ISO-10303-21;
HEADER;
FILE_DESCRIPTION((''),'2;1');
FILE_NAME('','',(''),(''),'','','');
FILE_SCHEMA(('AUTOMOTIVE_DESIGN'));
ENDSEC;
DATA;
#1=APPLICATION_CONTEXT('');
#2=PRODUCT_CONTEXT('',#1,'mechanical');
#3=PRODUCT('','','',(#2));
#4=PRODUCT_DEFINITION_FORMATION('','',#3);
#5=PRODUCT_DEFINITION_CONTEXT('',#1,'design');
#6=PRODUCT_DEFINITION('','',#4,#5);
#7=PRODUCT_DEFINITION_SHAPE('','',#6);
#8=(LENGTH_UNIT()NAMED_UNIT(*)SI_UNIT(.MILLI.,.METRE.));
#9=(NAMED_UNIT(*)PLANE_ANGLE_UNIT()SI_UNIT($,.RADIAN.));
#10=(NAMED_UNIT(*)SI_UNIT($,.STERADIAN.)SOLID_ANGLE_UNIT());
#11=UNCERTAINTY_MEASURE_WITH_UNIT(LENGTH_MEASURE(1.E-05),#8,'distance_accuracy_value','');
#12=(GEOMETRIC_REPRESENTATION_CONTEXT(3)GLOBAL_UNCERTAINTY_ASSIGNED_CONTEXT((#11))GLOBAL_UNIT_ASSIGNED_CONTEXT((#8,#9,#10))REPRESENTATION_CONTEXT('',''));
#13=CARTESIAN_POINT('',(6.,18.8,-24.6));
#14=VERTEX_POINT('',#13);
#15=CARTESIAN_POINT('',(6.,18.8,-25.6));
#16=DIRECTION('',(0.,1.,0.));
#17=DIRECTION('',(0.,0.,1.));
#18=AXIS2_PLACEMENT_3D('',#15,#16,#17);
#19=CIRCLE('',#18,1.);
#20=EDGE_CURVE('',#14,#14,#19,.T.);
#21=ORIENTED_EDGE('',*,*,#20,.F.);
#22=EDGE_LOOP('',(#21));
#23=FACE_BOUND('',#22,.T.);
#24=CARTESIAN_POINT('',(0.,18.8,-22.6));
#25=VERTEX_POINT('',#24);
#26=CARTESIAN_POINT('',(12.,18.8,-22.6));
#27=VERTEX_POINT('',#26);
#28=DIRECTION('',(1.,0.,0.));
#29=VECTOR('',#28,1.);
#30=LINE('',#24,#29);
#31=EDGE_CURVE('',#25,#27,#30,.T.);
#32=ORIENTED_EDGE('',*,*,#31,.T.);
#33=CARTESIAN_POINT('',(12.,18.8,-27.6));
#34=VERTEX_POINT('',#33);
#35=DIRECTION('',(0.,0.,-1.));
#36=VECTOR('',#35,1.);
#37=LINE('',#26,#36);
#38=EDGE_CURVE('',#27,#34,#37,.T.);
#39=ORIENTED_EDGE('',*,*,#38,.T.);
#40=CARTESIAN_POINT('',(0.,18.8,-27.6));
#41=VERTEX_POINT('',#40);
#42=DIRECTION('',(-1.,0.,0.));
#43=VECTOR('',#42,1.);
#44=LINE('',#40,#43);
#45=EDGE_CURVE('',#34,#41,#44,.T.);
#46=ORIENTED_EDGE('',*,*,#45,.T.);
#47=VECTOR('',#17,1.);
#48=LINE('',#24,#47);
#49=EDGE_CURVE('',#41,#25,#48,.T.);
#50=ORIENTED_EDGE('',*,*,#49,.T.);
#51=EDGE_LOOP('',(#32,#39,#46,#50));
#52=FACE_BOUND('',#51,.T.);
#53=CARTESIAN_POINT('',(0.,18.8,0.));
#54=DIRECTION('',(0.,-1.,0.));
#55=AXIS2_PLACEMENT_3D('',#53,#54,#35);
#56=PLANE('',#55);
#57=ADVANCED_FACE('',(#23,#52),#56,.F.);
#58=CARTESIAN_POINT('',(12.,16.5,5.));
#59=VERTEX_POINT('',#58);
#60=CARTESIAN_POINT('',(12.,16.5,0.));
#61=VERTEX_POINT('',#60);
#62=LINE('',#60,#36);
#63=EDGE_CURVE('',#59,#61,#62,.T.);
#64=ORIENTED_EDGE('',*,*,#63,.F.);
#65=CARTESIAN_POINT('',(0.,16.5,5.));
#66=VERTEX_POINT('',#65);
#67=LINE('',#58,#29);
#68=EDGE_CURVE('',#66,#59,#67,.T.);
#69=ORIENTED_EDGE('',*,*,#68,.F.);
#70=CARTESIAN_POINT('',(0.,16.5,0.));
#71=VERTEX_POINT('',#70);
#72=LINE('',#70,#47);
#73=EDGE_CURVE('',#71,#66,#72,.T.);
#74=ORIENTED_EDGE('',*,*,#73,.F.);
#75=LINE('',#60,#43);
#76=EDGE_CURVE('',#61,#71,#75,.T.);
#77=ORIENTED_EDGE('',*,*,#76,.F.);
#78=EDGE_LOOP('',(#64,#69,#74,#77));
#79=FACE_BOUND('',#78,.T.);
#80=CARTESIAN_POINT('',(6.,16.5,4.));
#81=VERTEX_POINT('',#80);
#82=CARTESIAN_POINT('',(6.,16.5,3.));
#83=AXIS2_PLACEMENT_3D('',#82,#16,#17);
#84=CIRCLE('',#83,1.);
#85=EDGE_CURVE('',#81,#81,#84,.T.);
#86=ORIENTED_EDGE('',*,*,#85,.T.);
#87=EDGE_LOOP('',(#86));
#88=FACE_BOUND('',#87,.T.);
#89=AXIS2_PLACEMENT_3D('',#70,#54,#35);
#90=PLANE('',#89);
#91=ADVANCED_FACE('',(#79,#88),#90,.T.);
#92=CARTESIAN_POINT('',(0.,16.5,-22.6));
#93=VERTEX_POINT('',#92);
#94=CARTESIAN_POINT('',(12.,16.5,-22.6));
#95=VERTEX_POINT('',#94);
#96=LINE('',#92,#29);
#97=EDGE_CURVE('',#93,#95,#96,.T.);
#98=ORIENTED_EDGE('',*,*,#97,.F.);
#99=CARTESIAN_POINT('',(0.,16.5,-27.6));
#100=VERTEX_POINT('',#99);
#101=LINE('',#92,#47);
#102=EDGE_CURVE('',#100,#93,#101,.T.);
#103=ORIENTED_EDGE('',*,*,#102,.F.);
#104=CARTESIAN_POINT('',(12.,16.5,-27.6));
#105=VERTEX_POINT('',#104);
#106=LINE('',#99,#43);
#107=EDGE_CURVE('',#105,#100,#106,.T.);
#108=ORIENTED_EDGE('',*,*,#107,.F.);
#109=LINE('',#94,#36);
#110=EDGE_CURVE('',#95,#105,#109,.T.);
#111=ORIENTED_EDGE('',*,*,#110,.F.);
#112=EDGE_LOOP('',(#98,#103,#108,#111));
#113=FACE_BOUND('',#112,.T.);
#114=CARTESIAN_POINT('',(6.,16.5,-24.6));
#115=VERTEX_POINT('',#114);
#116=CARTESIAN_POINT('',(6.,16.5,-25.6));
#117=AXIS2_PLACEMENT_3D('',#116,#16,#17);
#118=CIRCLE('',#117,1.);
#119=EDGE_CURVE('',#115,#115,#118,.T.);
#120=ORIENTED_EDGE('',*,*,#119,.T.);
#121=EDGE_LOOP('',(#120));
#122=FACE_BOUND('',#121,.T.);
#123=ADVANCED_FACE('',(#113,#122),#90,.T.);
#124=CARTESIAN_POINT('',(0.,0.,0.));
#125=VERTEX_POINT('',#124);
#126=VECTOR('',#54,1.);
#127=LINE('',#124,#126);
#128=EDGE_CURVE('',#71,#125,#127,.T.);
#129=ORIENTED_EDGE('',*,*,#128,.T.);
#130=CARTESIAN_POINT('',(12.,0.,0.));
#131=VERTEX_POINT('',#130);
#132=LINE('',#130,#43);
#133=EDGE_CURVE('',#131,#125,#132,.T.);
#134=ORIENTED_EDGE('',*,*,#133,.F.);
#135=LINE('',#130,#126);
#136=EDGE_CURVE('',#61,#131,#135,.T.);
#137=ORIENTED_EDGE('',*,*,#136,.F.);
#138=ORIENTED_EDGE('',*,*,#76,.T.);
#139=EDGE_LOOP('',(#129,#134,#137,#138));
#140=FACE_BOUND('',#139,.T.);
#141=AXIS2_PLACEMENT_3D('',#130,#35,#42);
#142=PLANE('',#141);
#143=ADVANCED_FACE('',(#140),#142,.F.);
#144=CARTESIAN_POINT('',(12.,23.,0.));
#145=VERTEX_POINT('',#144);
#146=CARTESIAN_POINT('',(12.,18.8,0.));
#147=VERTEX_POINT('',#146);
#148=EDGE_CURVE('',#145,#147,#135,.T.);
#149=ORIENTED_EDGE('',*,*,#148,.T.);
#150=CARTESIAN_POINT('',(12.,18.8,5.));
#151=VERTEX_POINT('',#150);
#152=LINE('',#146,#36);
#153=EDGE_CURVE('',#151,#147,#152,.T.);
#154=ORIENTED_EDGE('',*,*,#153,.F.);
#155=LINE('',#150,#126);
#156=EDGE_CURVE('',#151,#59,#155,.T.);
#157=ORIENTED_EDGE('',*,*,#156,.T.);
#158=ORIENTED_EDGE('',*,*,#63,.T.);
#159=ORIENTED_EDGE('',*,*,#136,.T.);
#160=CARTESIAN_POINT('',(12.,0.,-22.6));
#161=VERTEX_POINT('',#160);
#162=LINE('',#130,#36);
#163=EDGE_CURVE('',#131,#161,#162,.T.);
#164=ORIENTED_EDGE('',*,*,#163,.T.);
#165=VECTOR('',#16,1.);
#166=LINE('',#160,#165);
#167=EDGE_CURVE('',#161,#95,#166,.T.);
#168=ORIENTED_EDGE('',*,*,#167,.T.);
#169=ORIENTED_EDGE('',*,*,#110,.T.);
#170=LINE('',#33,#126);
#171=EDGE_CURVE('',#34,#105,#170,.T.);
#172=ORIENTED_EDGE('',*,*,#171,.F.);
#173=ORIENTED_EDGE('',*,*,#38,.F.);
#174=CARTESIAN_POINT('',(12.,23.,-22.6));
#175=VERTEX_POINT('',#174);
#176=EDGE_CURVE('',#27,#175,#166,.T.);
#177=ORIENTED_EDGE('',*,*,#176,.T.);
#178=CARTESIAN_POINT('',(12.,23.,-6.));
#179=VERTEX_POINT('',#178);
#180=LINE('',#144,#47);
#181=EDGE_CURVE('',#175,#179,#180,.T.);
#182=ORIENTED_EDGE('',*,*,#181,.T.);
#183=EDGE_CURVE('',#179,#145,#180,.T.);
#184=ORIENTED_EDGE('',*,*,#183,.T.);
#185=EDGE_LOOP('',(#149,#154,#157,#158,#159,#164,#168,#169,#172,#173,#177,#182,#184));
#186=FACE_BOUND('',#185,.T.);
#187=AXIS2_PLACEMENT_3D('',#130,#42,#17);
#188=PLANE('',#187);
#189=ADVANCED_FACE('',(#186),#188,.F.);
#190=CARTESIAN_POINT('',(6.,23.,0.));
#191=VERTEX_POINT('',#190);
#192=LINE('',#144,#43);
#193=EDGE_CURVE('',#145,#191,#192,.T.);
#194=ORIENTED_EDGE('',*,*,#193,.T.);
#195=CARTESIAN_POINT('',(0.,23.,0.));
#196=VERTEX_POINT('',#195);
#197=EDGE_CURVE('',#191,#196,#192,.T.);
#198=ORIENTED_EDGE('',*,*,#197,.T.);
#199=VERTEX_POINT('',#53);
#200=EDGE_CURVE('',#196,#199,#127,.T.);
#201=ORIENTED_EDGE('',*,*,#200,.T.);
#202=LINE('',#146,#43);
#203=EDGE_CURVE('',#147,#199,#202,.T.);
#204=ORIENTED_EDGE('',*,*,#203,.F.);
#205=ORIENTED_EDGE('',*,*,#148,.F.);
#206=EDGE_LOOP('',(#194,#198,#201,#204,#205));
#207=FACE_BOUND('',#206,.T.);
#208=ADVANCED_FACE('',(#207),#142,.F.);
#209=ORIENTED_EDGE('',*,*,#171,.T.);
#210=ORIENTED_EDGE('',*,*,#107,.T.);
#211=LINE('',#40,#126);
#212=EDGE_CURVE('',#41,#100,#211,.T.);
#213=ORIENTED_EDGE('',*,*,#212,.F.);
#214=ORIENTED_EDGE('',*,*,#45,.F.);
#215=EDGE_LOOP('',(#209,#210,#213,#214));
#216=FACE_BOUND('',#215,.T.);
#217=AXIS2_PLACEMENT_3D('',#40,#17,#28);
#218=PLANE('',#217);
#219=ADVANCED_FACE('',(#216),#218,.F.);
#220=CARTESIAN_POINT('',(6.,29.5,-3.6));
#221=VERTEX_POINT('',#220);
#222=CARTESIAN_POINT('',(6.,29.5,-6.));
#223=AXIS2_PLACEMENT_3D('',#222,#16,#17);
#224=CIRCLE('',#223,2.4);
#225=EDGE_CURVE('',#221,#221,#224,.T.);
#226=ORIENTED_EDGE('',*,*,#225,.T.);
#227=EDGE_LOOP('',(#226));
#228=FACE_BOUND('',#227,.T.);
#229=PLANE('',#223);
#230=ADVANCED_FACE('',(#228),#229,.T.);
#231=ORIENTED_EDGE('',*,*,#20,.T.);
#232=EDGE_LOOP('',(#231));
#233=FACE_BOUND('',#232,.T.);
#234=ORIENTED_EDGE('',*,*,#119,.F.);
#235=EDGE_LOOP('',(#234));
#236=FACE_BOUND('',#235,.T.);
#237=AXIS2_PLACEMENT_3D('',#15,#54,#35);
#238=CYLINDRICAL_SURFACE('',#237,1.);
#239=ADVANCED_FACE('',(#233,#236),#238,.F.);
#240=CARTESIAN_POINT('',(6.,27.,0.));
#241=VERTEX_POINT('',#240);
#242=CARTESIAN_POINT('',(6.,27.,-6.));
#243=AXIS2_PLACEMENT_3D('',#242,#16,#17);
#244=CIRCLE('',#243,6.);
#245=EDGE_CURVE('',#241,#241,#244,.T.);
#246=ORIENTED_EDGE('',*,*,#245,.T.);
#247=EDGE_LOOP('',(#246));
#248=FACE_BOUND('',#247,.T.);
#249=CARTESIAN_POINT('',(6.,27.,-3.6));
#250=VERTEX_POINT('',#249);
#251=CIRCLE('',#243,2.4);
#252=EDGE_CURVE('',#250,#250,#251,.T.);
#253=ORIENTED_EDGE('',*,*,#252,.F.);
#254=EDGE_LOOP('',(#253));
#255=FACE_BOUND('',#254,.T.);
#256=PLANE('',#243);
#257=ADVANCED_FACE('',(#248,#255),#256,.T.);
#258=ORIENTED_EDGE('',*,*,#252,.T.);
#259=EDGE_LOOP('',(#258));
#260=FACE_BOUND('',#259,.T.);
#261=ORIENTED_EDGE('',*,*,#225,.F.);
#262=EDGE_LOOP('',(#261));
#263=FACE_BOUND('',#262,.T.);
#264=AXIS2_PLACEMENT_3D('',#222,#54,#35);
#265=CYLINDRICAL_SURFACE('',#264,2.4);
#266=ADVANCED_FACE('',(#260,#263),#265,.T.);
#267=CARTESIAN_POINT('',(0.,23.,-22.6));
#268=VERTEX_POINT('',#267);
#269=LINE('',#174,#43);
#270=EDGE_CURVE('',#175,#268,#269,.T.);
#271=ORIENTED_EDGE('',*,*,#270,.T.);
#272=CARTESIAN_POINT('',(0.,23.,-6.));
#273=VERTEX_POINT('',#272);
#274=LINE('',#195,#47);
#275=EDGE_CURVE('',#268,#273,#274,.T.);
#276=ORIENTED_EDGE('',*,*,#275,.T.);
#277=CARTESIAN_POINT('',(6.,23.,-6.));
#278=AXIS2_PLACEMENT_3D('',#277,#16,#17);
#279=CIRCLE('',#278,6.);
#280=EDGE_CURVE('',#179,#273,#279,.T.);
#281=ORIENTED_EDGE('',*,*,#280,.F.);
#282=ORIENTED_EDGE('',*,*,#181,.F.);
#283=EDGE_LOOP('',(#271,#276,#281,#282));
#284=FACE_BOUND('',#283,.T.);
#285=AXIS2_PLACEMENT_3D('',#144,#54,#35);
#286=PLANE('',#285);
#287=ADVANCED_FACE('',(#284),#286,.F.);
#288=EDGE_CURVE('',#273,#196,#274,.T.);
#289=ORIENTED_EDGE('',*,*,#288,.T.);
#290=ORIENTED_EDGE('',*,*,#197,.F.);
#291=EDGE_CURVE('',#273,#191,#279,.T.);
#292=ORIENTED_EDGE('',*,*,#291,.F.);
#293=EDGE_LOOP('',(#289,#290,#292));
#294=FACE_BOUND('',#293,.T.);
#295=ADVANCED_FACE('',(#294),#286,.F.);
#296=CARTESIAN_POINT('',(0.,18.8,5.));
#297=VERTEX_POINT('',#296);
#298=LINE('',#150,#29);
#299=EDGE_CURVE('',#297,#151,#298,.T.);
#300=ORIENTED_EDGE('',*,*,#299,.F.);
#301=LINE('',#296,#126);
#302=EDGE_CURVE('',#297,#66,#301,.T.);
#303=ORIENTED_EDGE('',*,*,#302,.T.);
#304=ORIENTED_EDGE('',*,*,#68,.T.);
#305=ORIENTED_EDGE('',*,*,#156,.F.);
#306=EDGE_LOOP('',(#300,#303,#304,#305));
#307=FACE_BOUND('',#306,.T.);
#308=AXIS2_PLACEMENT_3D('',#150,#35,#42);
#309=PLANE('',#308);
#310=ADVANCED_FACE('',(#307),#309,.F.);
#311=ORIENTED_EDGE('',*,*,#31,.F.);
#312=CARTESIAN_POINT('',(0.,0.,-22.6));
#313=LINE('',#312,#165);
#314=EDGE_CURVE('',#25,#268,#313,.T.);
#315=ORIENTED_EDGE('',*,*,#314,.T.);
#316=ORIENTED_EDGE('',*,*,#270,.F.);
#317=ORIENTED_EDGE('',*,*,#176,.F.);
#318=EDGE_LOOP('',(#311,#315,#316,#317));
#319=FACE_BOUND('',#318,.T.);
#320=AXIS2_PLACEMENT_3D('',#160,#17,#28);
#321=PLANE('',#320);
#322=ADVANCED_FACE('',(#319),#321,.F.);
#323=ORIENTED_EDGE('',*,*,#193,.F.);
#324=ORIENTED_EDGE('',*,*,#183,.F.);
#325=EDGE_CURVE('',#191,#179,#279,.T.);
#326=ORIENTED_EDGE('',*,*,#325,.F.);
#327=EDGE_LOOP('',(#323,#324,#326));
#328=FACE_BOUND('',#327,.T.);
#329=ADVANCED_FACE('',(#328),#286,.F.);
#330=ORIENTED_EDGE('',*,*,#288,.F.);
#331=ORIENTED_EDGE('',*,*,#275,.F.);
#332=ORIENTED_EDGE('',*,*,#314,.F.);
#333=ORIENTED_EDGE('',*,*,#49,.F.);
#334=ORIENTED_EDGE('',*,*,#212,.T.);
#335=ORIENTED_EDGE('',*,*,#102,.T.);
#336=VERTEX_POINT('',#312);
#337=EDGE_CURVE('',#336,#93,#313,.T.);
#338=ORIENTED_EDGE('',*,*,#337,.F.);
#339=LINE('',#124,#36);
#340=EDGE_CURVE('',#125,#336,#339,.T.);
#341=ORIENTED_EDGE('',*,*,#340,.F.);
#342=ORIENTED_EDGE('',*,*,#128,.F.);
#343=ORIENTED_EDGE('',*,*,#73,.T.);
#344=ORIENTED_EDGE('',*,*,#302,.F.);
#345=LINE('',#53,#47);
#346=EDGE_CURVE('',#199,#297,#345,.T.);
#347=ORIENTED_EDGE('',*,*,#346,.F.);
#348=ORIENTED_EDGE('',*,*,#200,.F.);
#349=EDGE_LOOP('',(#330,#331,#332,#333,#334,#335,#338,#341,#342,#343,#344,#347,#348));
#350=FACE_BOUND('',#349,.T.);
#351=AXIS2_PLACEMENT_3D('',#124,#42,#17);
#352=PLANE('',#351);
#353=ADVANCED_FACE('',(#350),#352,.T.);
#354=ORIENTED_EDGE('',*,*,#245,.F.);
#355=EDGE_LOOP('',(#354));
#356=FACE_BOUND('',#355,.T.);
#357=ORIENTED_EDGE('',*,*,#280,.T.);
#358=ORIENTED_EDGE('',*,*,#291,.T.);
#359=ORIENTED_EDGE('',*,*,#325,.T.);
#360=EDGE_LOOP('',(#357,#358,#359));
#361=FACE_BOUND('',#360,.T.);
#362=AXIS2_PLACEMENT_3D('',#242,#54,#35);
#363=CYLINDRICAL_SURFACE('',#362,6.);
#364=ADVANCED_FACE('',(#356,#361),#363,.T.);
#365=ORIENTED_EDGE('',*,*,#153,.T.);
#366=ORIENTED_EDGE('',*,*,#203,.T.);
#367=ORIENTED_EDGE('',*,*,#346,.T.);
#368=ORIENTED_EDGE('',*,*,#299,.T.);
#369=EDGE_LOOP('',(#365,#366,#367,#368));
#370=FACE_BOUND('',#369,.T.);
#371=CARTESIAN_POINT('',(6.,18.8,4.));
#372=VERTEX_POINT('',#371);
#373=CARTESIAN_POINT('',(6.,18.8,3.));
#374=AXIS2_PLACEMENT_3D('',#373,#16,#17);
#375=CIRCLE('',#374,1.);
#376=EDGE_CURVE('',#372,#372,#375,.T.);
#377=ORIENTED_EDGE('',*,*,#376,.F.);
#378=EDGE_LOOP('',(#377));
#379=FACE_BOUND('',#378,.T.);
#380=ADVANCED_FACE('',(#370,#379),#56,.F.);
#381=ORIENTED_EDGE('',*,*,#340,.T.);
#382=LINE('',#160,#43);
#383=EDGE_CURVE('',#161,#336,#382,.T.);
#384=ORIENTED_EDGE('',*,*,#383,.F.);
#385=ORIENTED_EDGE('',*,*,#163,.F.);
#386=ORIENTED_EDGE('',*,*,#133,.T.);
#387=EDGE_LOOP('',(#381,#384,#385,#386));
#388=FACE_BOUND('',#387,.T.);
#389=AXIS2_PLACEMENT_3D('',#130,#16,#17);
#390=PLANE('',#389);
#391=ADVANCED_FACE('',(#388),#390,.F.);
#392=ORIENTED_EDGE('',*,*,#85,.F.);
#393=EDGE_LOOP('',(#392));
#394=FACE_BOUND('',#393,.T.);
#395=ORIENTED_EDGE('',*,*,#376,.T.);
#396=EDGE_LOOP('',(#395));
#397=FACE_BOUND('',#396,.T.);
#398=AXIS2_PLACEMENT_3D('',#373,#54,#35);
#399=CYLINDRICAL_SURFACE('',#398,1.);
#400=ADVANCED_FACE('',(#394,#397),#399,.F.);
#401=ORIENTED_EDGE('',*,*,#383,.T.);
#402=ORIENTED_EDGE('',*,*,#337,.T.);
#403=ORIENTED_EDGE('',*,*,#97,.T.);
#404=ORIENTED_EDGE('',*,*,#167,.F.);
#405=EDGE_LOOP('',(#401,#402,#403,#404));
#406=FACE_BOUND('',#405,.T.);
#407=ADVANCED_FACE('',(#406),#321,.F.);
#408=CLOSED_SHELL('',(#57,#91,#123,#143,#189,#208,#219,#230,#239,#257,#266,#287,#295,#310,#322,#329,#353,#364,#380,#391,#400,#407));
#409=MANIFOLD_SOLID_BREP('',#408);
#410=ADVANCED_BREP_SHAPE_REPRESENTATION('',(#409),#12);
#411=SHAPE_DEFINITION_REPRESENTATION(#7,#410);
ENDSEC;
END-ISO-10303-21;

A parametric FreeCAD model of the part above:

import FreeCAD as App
import Part
import Sketcher
Q = App.Units.Quantity

doc = App.newDocument("Part")
body = doc.addObject("PartDesign::Body", "Body")

# Sketch on YZ plane
sketch1 = body.newObject("Sketcher::SketchObject", "Sketch")
sketch1.AttachmentSupport = (doc.getObject("YZ_Plane"), [""])
sketch1.MapMode = "FlatFace"
sketch1.addGeometry([
    Part.LineSegment(App.Vector(23, 0, 0), App.Vector(0, 0, 0)),
    Part.LineSegment(App.Vector(0, 0, 0), App.Vector(0, -23, 0)),
    Part.LineSegment(App.Vector(0, -23, 0), App.Vector(23, -23, 0)),
    Part.LineSegment(App.Vector(23, -23, 0), App.Vector(23, 0, 0)),
], False)
sketch1.addConstraint([
    Sketcher.Constraint("Coincident", 0, 2, 1, 1),
    Sketcher.Constraint("Coincident", 1, 2, 2, 1),
    Sketcher.Constraint("Coincident", 2, 2, 3, 1),
    Sketcher.Constraint("Coincident", 3, 2, 0, 1),
    Sketcher.Constraint("Horizontal", 0),
    Sketcher.Constraint("Vertical", 1),
    Sketcher.Constraint("Horizontal", 2),
    Sketcher.Constraint("Vertical", 3),
    Sketcher.Constraint("Coincident", 0, 2, -1, 1),
    Sketcher.Constraint("DistanceX", 0, 2, 0, 1, Q("23 mm")),
    Sketcher.Constraint("DistanceY", 1, 2, 1, 1, Q("22.6 mm")),
])
pad1 = body.newObject("PartDesign::Pad", "Pad")
pad1.Profile = sketch1
pad1.Length = 12

# Sketch on XZ plane
sketch2 = body.newObject("Sketcher::SketchObject", "Sketch001")
sketch2.AttachmentSupport = (doc.getObject("XZ_Plane"), [""])
sketch2.MapMode = "FlatFace"
sketch2.AttachmentOffset = App.Placement(App.Vector(0, 0, -23), App.Rotation())
sketch2.addGeometry(Part.Circle(App.Vector(6, -6, 0), App.Vector(0, 0, 1), 6), False)
sketch2.addConstraint([
    Sketcher.Constraint("Diameter", 0, Q("12 mm")),
    Sketcher.Constraint("DistanceX", -1, 1, 0, 3, Q("6 mm")),
    Sketcher.Constraint("DistanceY", 0, 3, -1, 1, Q("6 mm")),
])
pad2 = body.newObject("PartDesign::Pad", "Pad001")
pad2.Profile = sketch2
pad2.Length = 4
pad2.Reversed = True

# Sketch on XZ plane
sketch3 = body.newObject("Sketcher::SketchObject", "Sketch002")
sketch3.AttachmentSupport = (doc.getObject("XZ_Plane"), [""])
sketch3.MapMode = "FlatFace"
sketch3.AttachmentOffset = App.Placement(App.Vector(0, 0, -27), App.Rotation())
sketch3.addGeometry(Part.Circle(App.Vector(6, -6, 0), App.Vector(0, 0, 1), 2.4), False)
sketch3.addConstraint([
    Sketcher.Constraint("Diameter", 0, Q("4.8 mm")),
    Sketcher.Constraint("DistanceX", -1, 1, 0, 3, Q("6 mm")),
    Sketcher.Constraint("DistanceY", 0, 3, -1, 1, Q("6 mm")),
])
pad3 = body.newObject("PartDesign::Pad", "Pad002")
pad3.Profile = sketch3
pad3.Length = 2.5
pad3.Reversed = True

# Sketch on XZ plane
sketch4 = body.newObject("Sketcher::SketchObject", "Sketch003")
sketch4.AttachmentSupport = (doc.getObject("XZ_Plane"), [""])
sketch4.MapMode = "FlatFace"
sketch4.AttachmentOffset = App.Placement(App.Vector(0, 0, -16.5), App.Rotation())
sketch4.addGeometry([
    Part.LineSegment(App.Vector(0, 0, 0), App.Vector(0, 5, 0)),  # 0
    Part.LineSegment(App.Vector(0, 5, 0), App.Vector(12, 5, 0)),  # 1
    Part.LineSegment(App.Vector(12, 5, 0), App.Vector(12, 0, 0)),  # 2
    Part.LineSegment(App.Vector(12, 0, 0), App.Vector(0, 0, 0)),  # 3
    Part.Circle(App.Vector(6, 3, 0), App.Vector(0, 0, 1), 1),  # 4
    Part.LineSegment(App.Vector(0, -27.6, 0), App.Vector(0, -22.6, 0)),  # 5
    Part.LineSegment(App.Vector(0, -22.6, 0), App.Vector(12, -22.6, 0)),  # 6
    Part.LineSegment(App.Vector(12, -22.6, 0), App.Vector(12, -27.6, 0)),  # 7
    Part.LineSegment(App.Vector(12, -27.6, 0), App.Vector(0, -27.6, 0)),  # 8
    Part.Circle(App.Vector(6, -25.6, 0), App.Vector(0, 0, 1), 1),  # 9
], False)
sketch4.addConstraint([
    Sketcher.Constraint("Coincident", 0, 2, 1, 1),
    Sketcher.Constraint("Coincident", 1, 2, 2, 1),
    Sketcher.Constraint("Coincident", 2, 2, 3, 1),
    Sketcher.Constraint("Coincident", 3, 2, 0, 1),
    Sketcher.Constraint("Coincident", 5, 2, 6, 1),
    Sketcher.Constraint("Coincident", 6, 2, 7, 1),
    Sketcher.Constraint("Coincident", 7, 2, 8, 1),
    Sketcher.Constraint("Coincident", 8, 2, 5, 1),
    Sketcher.Constraint("Vertical", 0),
    Sketcher.Constraint("Horizontal", 1),
    Sketcher.Constraint("Vertical", 2),
    Sketcher.Constraint("Horizontal", 3),
    Sketcher.Constraint("Vertical", 5),
    Sketcher.Constraint("Horizontal", 6),
    Sketcher.Constraint("Vertical", 7),
    Sketcher.Constraint("Horizontal", 8),
    Sketcher.Constraint("Coincident", 3, 2, -1, 1),
    Sketcher.Constraint("Equal", 4, 9),
    Sketcher.Constraint("PointOnObject", 5, 2, -2),
    Sketcher.Constraint("Vertical", 4, 3, 9, 3),
    Sketcher.Constraint("Vertical", 2, 2, 6, 2),
    Sketcher.Constraint("Equal", 2, 5),
    Sketcher.Constraint("Diameter", 4, Q("2 mm")),
    Sketcher.Constraint("DistanceX", 1, 1, 1, 2, Q("12 mm")),
    Sketcher.Constraint("DistanceY", 0, 1, 0, 2, Q("5 mm")),
    Sketcher.Constraint("DistanceX", -1, 1, 4, 3, Q("6 mm")),
    Sketcher.Constraint("DistanceY", -1, 1, 4, 3, Q("3 mm")),
    Sketcher.Constraint("DistanceY", 9, 3, 5, 2, Q("3 mm")),
    Sketcher.Constraint("DistanceY", 9, 3, -1, 1, Q("25.6 mm")),
])
pad4 = body.newObject("PartDesign::Pad", "Pad003")
pad4.Profile = sketch4
pad4.Length = 2.3
pad4.Reversed = True

doc.recompute()
